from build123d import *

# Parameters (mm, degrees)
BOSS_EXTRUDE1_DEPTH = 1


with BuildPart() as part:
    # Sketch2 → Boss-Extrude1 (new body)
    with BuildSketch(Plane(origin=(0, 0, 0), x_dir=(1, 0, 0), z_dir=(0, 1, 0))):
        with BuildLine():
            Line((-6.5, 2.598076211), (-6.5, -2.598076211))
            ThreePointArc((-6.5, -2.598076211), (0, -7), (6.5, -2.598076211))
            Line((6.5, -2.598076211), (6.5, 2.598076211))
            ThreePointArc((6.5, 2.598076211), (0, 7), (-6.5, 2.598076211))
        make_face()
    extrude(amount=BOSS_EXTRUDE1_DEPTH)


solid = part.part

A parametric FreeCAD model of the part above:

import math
import FreeCAD as App
import Part
import Sketcher

V = App.Vector

doc = App.newDocument("Part")
body = doc.addObject("PartDesign::Body", "Body")

sketch1 = doc.addObject("Sketcher::SketchObject", "Sketch")
body.addObject(sketch1)
sketch1.AttachmentSupport = (doc.XZ_Plane, [""])
sketch1.MapMode = "FlatFace"
sketch1.addGeometry(Part.LineSegment(V(-6.5, -2.598076, 0), V(-6.5, 2.598076, 0)), False)
sketch1.addGeometry(Part.ArcOfCircle(Part.Circle(V(0, 0, 0), V(0, 0, 1), 7), math.radians(21.786789), math.radians(158.213211)), False)
sketch1.addGeometry(Part.LineSegment(V(6.5, 2.598076, 0), V(6.5, -2.598076, 0)), False)
sketch1.addGeometry(Part.ArcOfCircle(Part.Circle(V(0, 0, 0), V(0, 0, 1), 7), math.radians(-158.213211), math.radians(-21.786789)), False)
sketch1.addConstraint(Sketcher.Constraint("Coincident", 0, 2, 1, 2))
sketch1.addConstraint(Sketcher.Constraint("Coincident", 1, 1, 2, 1))
sketch1.addConstraint(Sketcher.Constraint("Coincident", 2, 2, 3, 2))
sketch1.addConstraint(Sketcher.Constraint("Coincident", 3, 1, 0, 1))
sketch1.addConstraint(Sketcher.Constraint("Vertical", 0))
sketch1.addConstraint(Sketcher.Constraint("Vertical", 2))
sketch1.addConstraint(Sketcher.Constraint("Coincident", 1, 3, -1, 1))
sketch1.addConstraint(Sketcher.Constraint("Coincident", 3, 3, -1, 1))
sketch1.addConstraint(Sketcher.Constraint("Equal", 1, 3))
sketch1.addConstraint(Sketcher.Constraint("Horizontal", 0, 2, 1, 1))
sketch1.addConstraint(Sketcher.Constraint("Radius", 1, 7.0))
sketch1.addConstraint(Sketcher.Constraint("DistanceX", 0, 2, 1, 1, 13.0))
pad1 = doc.addObject("PartDesign::Pad", "Pad")
body.addObject(pad1)
pad1.Profile = sketch1
pad1.Length = 1
pad1.Reversed = True

doc.recompute()
